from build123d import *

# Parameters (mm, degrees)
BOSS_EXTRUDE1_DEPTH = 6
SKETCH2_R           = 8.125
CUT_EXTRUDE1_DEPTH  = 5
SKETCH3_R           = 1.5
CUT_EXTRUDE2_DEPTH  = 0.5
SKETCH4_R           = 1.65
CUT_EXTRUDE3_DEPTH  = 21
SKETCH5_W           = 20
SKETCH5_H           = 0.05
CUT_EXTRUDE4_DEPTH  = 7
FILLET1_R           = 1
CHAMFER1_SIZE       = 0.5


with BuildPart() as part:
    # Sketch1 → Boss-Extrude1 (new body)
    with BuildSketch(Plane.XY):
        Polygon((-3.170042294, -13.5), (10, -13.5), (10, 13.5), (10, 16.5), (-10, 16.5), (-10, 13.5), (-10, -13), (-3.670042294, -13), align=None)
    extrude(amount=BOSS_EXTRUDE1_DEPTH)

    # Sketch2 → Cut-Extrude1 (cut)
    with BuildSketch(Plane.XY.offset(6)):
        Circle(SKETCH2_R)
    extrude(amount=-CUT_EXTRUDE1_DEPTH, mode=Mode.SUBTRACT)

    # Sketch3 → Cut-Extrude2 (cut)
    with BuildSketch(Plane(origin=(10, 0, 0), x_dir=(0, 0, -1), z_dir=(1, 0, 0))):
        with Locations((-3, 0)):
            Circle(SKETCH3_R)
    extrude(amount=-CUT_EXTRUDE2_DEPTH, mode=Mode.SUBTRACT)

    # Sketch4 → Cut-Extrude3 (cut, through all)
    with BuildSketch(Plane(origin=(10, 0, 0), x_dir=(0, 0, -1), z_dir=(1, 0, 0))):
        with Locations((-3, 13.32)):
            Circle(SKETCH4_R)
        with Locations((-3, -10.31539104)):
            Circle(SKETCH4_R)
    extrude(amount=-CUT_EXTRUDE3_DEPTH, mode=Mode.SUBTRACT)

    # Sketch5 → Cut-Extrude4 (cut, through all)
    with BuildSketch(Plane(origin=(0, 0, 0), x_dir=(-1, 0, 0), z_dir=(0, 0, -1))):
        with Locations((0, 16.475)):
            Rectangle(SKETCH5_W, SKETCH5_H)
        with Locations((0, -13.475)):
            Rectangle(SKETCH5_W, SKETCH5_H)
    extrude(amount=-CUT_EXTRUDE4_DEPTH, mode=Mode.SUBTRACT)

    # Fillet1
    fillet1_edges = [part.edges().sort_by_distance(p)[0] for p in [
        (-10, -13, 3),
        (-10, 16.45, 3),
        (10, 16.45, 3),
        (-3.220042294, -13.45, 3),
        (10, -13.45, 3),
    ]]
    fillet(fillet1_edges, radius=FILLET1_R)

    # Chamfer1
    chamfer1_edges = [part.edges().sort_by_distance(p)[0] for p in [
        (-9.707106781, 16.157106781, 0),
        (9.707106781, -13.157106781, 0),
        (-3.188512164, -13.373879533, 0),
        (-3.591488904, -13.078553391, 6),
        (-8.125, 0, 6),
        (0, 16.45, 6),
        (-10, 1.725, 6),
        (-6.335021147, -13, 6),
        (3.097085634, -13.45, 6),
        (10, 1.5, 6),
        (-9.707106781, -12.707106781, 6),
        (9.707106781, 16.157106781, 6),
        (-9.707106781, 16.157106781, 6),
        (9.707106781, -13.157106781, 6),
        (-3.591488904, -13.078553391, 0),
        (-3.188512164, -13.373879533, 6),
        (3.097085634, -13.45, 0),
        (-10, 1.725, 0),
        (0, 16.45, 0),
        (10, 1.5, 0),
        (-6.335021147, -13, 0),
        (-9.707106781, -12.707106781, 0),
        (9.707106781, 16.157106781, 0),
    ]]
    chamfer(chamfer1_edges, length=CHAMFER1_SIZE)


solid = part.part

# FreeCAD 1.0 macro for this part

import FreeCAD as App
import Part
import Sketcher
from FreeCAD import Vector
Q = App.Units.Quantity


def edges_at(feature, points):
    """Names of the edges that pass closest to the given points."""
    edges = feature.Shape.Edges
    near = lambda p: min(range(len(edges)), key=lambda i: edges[i].distToShape(Part.Vertex(*p))[0])
    return sorted({f"Edge{near(p) + 1}" for p in points})


def add_polygon(sketch, points):
    """Adds a closed chain of lines whose ends are joined by coincident constraints."""
    first, n = sketch.GeometryCount, len(points)
    for a, b in zip(points, points[1:] + points[:1]):
        sketch.addGeometry(Part.LineSegment(App.Vector(*a, 0), App.Vector(*b, 0)), False)
    for i in range(n):
        sketch.addConstraint(Sketcher.Constraint("Coincident", first + i, 2, first + (i + 1) % n, 1))

doc = App.newDocument("Part")
body = doc.addObject("PartDesign::Body", "Body")

# Sketch on XY plane
sketch1 = body.newObject("Sketcher::SketchObject", "Sketch")
sketch1.AttachmentSupport = (doc.getObject("XY_Plane"), [""])
sketch1.MapMode = "FlatFace"
add_polygon(sketch1, [(-3.2, -13.5), (10, -13.5), (10, 16.5), (-10, 16.5), (-10, -13), (-3.7, -13)])  # lines 0-5
sketch1.addConstraint([
    Sketcher.Constraint("Horizontal", 0),
    Sketcher.Constraint("Vertical", 1),
    Sketcher.Constraint("Horizontal", 2),
    Sketcher.Constraint("Vertical", 3),
    Sketcher.Constraint("Horizontal", 4),
    Sketcher.Constraint("DistanceX", 2, 2, 2, 1, Q("20 mm")),
    Sketcher.Constraint("DistanceY", 1, 1, 1, 2, Q("30 mm")),
    Sketcher.Constraint("Angle", 5, Q("-45 deg")),
    Sketcher.Constraint("DistanceY", 3, 2, 3, 1, Q("29.5 mm")),
    Sketcher.Constraint("DistanceX", -1, 1, 0, 2, Q("10 mm")),
    Sketcher.Constraint("DistanceY", 3, 2, -1, 1, Q("13 mm")),
    Sketcher.Constraint("DistanceX", 0, 1, 0, 2, Q("13.170042 mm")),
])
pad1 = body.newObject("PartDesign::Pad", "Pad")
pad1.Profile = sketch1
pad1.Length = 6

# Sketch on XY plane
sketch2 = body.newObject("Sketcher::SketchObject", "Sketch001")
sketch2.AttachmentSupport = (doc.getObject("XY_Plane"), [""])
sketch2.MapMode = "FlatFace"
sketch2.AttachmentOffset = App.Placement(Vector(0, 0, 6), App.Rotation())
sketch2.addGeometry(Part.Circle(Vector(0, 0, 0), Vector(0, 0, 1), 8), False)
sketch2.addConstraint([
    Sketcher.Constraint("Coincident", 0, 3, -1, 1),
    Sketcher.Constraint("Diameter", 0, Q("16.25 mm")),
])
pocket1 = body.newObject("PartDesign::Pocket", "Pocket")
pocket1.Profile = sketch2
pocket1.Length = 5

# Sketch on YZ plane
sketch3 = body.newObject("Sketcher::SketchObject", "Sketch002")
sketch3.AttachmentSupport = (doc.getObject("YZ_Plane"), [""])
sketch3.MapMode = "FlatFace"
sketch3.AttachmentOffset = App.Placement(Vector(0, 0, 10), App.Rotation())
sketch3.addGeometry(Part.Circle(Vector(0, 3, 0), Vector(0, 0, 1), 1.5), False)
sketch3.addConstraint([
    Sketcher.Constraint("PointOnObject", 0, 3, -2),
    Sketcher.Constraint("Diameter", 0, Q("3 mm")),
    Sketcher.Constraint("DistanceY", -1, 1, 0, 3, Q("3 mm")),
])
pocket2 = body.newObject("PartDesign::Pocket", "Pocket001")
pocket2.Profile = sketch3
pocket2.Length = 0.5

# Sketch on YZ plane
sketch4 = body.newObject("Sketcher::SketchObject", "Sketch003")
sketch4.AttachmentSupport = (doc.getObject("YZ_Plane"), [""])
sketch4.MapMode = "FlatFace"
sketch4.AttachmentOffset = App.Placement(Vector(0, 0, 10), App.Rotation())
sketch4.addGeometry([
    Part.Circle(Vector(13.3, 3, 0), Vector(0, 0, 1), 1.6),
    Part.Circle(Vector(-10.3, 3, 0), Vector(0, 0, 1), 1.6),
], False)
sketch4.addConstraint([
    Sketcher.Constraint("Equal", 0, 1),
    Sketcher.Constraint("Horizontal", 0, 3, 1, 3),
    Sketcher.Constraint("Diameter", 0, Q("3.3 mm")),
    Sketcher.Constraint("DistanceY", -1, 1, 0, 3, Q("3 mm")),
    Sketcher.Constraint("DistanceX", -1, 1, 0, 3, Q("13.32 mm")),
    Sketcher.Constraint("DistanceX", 1, 3, -1, 1, Q("10.315391 mm")),
])
pocket3 = body.newObject("PartDesign::Pocket", "Pocket002")
pocket3.Profile = sketch4
pocket3.Type = "ThroughAll"

# Sketch on XY plane
sketch5 = body.newObject("Sketcher::SketchObject", "Sketch004")
sketch5.AttachmentSupport = (doc.getObject("XY_Plane"), [""])
sketch5.MapMode = "FlatFace"
add_polygon(sketch5, [(10, 16.5), (10, 16.45), (-10, 16.45), (-10, 16.5)])  # lines 0-3
add_polygon(sketch5, [(10, -13.45), (10, -13.5), (-10, -13.5), (-10, -13.45)])  # lines 4-7
sketch5.addConstraint([
    Sketcher.Constraint("Vertical", 0),
    Sketcher.Constraint("Horizontal", 1),
    Sketcher.Constraint("Vertical", 2),
    Sketcher.Constraint("Horizontal", 3),
    Sketcher.Constraint("Vertical", 4),
    Sketcher.Constraint("Horizontal", 5),
    Sketcher.Constraint("Vertical", 6),
    Sketcher.Constraint("Horizontal", 7),
    Sketcher.Constraint("Vertical", 3, 2, 4, 2),
    Sketcher.Constraint("Vertical", 2, 2, 5, 2),
    Sketcher.Constraint("Equal", 2, 4),
    Sketcher.Constraint("DistanceX", 1, 2, 1, 1, Q("20 mm")),
    Sketcher.Constraint("DistanceX", -1, 1, 0, 2, Q("10 mm")),
    Sketcher.Constraint("DistanceY", 4, 2, 3, 2, Q("30 mm")),
    Sketcher.Constraint("DistanceY", 0, 2, 0, 1, Q("0.05 mm")),
    Sketcher.Constraint("DistanceY", -1, 1, 2, 2, Q("16.5 mm")),
])
pocket4 = body.newObject("PartDesign::Pocket", "Pocket003")
pocket4.Profile = sketch5
pocket4.Type = "ThroughAll"
pocket4.Reversed = True
doc.recompute()

fillet = body.newObject("PartDesign::Fillet", "Fillet")
fillet.Base = (pocket4, edges_at(pocket4, [
    (-10, -13, 3),
    (-10, 16.45, 3),
    (10, 16.45, 3),
    (-3.22, -13.45, 3),
    (10, -13.45, 3),
]))
fillet.Radius = 1
doc.recompute()

chamfer = body.newObject("PartDesign::Chamfer", "Chamfer")
chamfer.Base = (fillet, edges_at(fillet, [
    (-9.707, 16.157, 0),
    (9.707, -13.157, 0),
    (-3.189, -13.374, 0),
    (-3.591, -13.079, 6),
    (-8.125, 0, 6),
    (0, 16.45, 6),
    (-10, 1.725, 6),
    (-6.335, -13, 6),
    (3.097, -13.45, 6),
    (10, 1.5, 6),
    (-9.707, -12.707, 6),
    (9.707, 16.157, 6),
    (-9.707, 16.157, 6),
    (9.707, -13.157, 6),
    (-3.591, -13.079, 0),
    (-3.189, -13.374, 6),
    (3.097, -13.45, 0),
    (-10, 1.725, 0),
    (0, 16.45, 0),
    (10, 1.5, 0),
    (-6.335, -13, 0),
    (-9.707, -12.707, 0),
    (9.707, 16.157, 0),
]))
chamfer.Size = 0.5

doc.recompute()
